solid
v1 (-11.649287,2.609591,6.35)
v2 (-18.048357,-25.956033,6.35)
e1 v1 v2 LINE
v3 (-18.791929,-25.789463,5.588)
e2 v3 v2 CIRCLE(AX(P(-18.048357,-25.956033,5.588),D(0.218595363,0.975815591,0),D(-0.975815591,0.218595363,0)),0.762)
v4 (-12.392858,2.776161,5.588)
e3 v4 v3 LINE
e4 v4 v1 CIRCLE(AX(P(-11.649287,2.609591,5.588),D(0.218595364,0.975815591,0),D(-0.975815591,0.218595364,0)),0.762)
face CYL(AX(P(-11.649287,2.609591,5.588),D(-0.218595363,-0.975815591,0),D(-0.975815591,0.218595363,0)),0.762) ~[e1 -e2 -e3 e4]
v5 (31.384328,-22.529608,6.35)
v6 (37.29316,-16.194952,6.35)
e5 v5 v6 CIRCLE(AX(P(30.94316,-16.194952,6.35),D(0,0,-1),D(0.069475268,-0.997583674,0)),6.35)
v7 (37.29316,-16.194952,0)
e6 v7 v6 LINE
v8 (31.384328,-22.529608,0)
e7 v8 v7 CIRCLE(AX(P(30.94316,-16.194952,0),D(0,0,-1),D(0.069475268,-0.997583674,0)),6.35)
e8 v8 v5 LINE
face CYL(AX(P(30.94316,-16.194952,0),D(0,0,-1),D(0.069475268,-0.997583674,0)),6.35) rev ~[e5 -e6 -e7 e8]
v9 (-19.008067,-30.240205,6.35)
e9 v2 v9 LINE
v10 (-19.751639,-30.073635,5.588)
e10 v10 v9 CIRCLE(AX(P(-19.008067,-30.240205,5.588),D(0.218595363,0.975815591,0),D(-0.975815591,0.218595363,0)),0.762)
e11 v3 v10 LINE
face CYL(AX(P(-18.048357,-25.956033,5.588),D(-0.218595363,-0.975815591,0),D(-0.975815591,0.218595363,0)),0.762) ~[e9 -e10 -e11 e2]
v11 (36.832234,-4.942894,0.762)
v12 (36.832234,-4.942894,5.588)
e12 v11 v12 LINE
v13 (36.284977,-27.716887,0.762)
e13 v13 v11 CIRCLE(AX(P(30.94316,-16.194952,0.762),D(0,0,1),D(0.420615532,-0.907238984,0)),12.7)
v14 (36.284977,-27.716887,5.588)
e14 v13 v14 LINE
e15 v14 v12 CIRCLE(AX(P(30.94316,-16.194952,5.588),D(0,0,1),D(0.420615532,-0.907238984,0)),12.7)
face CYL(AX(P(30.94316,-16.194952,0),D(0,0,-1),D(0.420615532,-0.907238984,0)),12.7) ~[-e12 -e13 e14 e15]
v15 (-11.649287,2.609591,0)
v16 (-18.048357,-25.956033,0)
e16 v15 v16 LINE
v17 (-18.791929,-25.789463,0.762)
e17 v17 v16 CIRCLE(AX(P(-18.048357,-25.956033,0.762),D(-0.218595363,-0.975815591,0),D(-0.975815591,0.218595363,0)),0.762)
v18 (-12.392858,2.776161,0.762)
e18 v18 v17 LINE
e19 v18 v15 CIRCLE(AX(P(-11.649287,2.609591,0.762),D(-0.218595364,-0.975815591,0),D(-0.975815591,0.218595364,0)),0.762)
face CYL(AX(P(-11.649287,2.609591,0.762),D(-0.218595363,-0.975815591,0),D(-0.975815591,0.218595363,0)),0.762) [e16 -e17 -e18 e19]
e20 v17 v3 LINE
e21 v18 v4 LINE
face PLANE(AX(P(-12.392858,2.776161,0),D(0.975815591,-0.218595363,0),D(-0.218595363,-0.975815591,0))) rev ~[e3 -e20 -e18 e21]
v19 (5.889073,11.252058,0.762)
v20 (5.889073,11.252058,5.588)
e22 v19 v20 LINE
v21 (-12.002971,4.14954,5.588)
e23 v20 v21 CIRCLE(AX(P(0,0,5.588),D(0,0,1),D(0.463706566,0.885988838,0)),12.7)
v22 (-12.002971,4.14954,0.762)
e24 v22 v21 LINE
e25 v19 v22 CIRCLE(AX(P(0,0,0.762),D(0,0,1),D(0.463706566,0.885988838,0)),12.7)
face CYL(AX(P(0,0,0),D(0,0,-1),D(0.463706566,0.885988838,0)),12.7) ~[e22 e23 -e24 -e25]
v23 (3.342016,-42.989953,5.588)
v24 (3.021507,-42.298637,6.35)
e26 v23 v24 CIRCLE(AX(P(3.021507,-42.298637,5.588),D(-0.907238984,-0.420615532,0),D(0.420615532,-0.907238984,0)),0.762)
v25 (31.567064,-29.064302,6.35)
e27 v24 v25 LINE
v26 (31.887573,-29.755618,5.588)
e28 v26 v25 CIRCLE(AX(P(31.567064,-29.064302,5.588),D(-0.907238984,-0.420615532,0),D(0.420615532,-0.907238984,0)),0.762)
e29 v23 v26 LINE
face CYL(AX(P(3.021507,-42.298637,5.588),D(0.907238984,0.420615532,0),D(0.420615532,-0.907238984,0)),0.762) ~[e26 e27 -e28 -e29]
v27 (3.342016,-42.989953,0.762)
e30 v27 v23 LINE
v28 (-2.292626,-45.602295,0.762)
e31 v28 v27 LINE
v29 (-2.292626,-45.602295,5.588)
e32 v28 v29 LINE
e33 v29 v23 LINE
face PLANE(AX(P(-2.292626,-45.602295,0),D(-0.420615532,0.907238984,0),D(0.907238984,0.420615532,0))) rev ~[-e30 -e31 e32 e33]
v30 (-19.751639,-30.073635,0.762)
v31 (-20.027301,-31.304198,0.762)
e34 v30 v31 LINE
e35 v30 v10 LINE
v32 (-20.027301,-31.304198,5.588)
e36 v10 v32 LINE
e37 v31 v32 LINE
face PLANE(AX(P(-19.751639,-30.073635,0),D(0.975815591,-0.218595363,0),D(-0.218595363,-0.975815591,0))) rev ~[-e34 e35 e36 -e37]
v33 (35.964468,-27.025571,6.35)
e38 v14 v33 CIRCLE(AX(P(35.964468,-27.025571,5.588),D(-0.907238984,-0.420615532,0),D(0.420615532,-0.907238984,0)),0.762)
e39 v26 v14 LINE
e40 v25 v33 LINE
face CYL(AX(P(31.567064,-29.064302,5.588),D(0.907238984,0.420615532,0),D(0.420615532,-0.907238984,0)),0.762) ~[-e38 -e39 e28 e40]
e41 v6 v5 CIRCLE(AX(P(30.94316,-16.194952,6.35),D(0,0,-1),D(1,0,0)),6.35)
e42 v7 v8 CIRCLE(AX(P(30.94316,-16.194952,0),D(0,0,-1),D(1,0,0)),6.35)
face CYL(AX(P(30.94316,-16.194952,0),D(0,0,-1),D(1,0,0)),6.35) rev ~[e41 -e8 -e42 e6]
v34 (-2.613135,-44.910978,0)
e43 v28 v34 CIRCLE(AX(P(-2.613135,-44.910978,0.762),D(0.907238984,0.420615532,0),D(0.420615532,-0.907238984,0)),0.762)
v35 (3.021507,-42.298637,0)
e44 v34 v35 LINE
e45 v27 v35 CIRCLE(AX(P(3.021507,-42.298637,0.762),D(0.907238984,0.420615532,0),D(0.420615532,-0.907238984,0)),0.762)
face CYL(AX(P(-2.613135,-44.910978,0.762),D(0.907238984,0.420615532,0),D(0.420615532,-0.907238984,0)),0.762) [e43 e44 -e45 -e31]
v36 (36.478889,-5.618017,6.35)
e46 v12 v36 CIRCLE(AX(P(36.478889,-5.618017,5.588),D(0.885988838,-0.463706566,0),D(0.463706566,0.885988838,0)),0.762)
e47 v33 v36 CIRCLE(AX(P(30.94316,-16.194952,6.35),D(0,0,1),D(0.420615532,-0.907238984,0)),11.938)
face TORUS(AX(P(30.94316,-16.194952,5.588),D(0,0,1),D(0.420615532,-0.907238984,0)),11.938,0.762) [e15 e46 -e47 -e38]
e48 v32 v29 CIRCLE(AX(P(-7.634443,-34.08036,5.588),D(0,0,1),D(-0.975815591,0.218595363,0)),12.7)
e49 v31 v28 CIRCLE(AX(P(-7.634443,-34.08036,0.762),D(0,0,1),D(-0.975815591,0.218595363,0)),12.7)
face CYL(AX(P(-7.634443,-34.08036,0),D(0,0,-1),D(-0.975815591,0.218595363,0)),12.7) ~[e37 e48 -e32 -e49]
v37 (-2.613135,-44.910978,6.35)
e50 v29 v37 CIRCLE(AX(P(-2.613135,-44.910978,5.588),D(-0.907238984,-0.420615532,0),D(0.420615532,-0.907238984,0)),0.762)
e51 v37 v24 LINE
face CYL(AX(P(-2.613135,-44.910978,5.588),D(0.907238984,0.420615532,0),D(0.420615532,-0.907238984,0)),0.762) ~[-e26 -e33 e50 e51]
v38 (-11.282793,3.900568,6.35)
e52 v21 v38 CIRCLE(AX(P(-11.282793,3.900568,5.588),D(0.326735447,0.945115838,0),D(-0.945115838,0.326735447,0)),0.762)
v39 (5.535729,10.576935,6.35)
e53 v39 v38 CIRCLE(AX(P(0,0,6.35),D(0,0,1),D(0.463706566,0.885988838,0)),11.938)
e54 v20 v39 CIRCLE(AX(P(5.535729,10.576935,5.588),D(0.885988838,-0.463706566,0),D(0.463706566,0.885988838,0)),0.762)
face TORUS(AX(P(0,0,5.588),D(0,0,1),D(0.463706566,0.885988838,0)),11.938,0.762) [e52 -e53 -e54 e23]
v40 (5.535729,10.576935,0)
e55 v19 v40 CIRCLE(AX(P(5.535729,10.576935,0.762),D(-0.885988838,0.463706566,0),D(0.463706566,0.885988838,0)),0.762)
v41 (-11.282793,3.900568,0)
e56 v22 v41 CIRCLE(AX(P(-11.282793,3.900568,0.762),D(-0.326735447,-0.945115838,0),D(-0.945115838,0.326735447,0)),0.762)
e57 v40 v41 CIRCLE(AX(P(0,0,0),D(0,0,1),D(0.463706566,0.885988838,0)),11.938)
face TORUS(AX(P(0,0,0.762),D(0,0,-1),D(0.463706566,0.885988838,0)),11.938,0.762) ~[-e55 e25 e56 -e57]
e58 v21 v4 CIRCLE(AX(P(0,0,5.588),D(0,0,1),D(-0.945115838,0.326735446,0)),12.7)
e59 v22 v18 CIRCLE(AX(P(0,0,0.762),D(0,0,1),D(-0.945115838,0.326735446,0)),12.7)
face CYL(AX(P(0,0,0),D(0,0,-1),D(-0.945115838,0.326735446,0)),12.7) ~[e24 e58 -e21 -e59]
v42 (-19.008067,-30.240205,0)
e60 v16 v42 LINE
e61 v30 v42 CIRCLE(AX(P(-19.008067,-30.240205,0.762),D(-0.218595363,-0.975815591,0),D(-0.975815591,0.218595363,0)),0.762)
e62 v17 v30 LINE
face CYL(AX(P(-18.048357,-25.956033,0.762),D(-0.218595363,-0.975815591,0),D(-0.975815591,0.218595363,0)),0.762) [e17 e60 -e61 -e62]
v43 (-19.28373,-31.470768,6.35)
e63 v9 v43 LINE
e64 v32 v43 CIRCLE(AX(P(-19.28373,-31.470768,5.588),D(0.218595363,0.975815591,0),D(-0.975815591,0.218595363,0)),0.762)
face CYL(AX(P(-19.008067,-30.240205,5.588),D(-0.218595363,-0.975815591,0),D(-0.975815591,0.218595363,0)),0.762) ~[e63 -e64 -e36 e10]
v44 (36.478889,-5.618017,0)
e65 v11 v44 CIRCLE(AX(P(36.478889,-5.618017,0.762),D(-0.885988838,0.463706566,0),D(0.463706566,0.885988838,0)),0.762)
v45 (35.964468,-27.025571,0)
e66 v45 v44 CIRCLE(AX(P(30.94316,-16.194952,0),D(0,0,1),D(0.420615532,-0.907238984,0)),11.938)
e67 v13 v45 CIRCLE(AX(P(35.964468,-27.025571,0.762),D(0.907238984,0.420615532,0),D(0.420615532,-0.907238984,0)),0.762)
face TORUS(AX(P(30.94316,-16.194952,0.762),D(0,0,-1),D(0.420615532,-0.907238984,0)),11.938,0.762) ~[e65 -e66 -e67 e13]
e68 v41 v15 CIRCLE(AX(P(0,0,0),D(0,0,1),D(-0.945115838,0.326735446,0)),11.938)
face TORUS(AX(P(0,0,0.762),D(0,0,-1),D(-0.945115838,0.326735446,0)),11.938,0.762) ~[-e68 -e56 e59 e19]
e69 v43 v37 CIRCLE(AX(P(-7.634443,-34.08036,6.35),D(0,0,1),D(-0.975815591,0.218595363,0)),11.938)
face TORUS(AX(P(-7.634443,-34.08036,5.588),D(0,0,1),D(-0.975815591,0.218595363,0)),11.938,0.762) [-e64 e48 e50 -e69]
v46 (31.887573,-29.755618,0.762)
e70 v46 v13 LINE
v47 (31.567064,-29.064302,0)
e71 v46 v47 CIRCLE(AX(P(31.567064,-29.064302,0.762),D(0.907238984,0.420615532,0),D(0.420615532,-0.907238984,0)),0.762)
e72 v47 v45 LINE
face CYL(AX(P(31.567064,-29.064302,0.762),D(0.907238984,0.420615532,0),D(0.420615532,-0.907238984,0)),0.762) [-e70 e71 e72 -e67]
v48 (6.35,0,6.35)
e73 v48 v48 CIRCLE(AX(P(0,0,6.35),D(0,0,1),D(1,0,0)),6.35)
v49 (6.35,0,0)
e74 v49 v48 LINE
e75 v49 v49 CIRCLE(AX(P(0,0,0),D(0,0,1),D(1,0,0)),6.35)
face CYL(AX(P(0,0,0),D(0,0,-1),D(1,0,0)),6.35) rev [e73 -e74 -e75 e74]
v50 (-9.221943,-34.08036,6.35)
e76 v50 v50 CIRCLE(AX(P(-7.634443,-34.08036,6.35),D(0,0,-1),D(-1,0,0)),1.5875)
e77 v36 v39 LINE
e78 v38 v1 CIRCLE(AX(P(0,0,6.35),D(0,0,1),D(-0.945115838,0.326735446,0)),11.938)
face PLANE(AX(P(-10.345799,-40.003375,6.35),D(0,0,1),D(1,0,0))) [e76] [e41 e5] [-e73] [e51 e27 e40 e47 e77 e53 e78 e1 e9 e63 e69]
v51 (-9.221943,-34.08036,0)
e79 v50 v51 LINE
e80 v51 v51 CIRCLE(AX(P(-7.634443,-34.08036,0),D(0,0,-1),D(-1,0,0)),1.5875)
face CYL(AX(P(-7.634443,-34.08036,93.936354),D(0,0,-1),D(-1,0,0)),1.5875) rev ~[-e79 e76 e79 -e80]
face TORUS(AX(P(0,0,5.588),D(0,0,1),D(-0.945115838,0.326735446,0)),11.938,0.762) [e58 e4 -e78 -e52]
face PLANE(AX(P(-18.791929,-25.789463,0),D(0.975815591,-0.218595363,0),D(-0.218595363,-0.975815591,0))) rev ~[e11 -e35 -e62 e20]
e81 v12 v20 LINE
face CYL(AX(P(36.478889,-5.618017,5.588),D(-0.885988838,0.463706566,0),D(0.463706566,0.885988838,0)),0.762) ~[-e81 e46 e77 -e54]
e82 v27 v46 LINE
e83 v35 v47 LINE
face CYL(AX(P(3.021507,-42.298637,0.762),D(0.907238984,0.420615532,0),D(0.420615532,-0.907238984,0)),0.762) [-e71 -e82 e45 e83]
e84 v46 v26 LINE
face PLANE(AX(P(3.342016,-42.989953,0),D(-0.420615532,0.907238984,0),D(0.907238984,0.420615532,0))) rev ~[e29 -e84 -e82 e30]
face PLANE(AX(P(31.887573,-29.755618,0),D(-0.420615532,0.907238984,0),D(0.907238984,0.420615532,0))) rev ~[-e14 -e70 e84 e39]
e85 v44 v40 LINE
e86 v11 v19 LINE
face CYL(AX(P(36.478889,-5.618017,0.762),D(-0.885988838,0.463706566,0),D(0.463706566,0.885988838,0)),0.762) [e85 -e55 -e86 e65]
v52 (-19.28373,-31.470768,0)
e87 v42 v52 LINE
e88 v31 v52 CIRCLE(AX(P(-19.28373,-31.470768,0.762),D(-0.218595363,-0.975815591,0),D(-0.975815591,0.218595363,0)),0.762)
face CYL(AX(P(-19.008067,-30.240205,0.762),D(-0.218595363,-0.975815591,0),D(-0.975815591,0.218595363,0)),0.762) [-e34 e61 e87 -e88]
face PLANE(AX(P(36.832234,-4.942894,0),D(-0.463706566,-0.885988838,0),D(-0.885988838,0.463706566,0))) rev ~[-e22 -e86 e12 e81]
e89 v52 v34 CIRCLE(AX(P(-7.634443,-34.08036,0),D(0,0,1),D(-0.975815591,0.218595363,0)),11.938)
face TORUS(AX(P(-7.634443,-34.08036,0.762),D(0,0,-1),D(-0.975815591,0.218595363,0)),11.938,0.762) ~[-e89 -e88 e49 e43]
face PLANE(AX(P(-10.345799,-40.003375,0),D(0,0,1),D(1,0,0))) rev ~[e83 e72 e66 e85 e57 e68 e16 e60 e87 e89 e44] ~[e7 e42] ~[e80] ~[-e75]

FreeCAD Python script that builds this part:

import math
import FreeCAD as App
import Part
import Sketcher
Q = App.Units.Quantity


def edges_at(feature, points):
    """Names of the edges that pass closest to the given points."""
    edges = feature.Shape.Edges
    near = lambda p: min(range(len(edges)), key=lambda i: edges[i].distToShape(Part.Vertex(*p))[0])
    return sorted({f"Edge{near(p) + 1}" for p in points})

doc = App.newDocument("Part")
body = doc.addObject("PartDesign::Body", "Body")

sketch1 = body.newObject("Sketcher::SketchObject", "Sketch")
sketch1.AttachmentSupport = (doc.getObject("XY_Plane"), [""])
sketch1.MapMode = "FlatFace"
sketch1.addGeometry([
    Part.LineSegment(App.Vector(-12.4, 2.8, 0), App.Vector(-18.8, -25.8, 0)),
    Part.LineSegment(App.Vector(-18.8, -25.8, 0), App.Vector(-19.8, -30.1, 0)),
    Part.LineSegment(App.Vector(-19.8, -30.1, 0), App.Vector(-20, -31.3, 0)),
    Part.ArcOfCircle(Part.Circle(App.Vector(-7.6, -34.1, 0), App.Vector(0, 0, 1), 12.7), math.radians(167), math.radians(295)),
    Part.LineSegment(App.Vector(-2.3, -45.6, 0), App.Vector(3.3, -43, 0)),
    Part.LineSegment(App.Vector(3.3, -43, 0), App.Vector(31.9, -29.8, 0)),
    Part.LineSegment(App.Vector(31.9, -29.8, 0), App.Vector(36.3, -27.7, 0)),
    Part.ArcOfCircle(Part.Circle(App.Vector(30.9, -16.2, 0), App.Vector(0, 0, 1), 12.7), math.radians(-65), math.radians(62)),
    Part.LineSegment(App.Vector(36.8, -4.9, 0), App.Vector(5.9, 11.3, 0)),
    Part.ArcOfCircle(Part.Circle(App.Vector(0, 0, 0), App.Vector(0, 0, 1), 12.7), math.radians(62), math.radians(161)),
    Part.ArcOfCircle(Part.Circle(App.Vector(0, 0, 0), App.Vector(0, 0, 1), 12.7), math.radians(160.93), math.radians(167.37)),
    Part.Circle(App.Vector(0, 0, 0), App.Vector(0, 0, 1), 6.3),
    Part.ArcOfCircle(Part.Circle(App.Vector(30.9, -16.2, 0), App.Vector(0, 0, 1), 6.3), math.radians(0), math.radians(274)),
    Part.ArcOfCircle(Part.Circle(App.Vector(30.9, -16.2, 0), App.Vector(0, 0, 1), 6.3), math.radians(-86), math.radians(0)),
], False)
sketch1.addConstraint([
    Sketcher.Constraint("Coincident", 0, 2, 1, 1),
    Sketcher.Constraint("Coincident", 1, 2, 2, 1),
    Sketcher.Constraint("Tangent", 2, 2, 3, 1),
    Sketcher.Constraint("Tangent", 3, 2, 4, 1),
    Sketcher.Constraint("Coincident", 4, 2, 5, 1),
    Sketcher.Constraint("Coincident", 5, 2, 6, 1),
    Sketcher.Constraint("Tangent", 6, 2, 7, 1),
    Sketcher.Constraint("Tangent", 7, 2, 8, 1),
    Sketcher.Constraint("Tangent", 8, 2, 9, 1),
    Sketcher.Constraint("Tangent", 9, 2, 10, 1),
    Sketcher.Constraint("Tangent", 10, 2, 0, 1),
    Sketcher.Constraint("Tangent", 12, 1, 13, 2),
    Sketcher.Constraint("Coincident", 13, 1, 12, 2),
    Sketcher.Constraint("Coincident", 9, 3, -1, 1),
    Sketcher.Constraint("Coincident", 11, 3, -1, 1),
    Sketcher.Constraint("Coincident", 12, 3, 7, 3),
    Sketcher.Constraint("Equal", 3, 7),
    Sketcher.Constraint("Equal", 7, 9),
    Sketcher.Constraint("Equal", 9, 10),
    Sketcher.Constraint("Equal", 11, 12),
    Sketcher.Constraint("Parallel", 0, 1),
    Sketcher.Constraint("Parallel", 1, 2),
    Sketcher.Constraint("Parallel", 4, 5),
    Sketcher.Constraint("Parallel", 5, 6),
    Sketcher.Constraint("Horizontal", 13, 3, 12, 1),
    Sketcher.Constraint("Diameter", 11, Q("0.5 in")),
    Sketcher.Constraint("Radius", 3, Q("0.5 in")),
    Sketcher.Constraint("Distance", 8, Q("1.375 in")),
    Sketcher.Constraint("DistanceX", 2, 2, -1, 1, 20.027301),
    Sketcher.Constraint("DistanceY", 2, 2, -1, 1, 31.304198),
    Sketcher.Constraint("DistanceX", 3, 2, 5, 2, 34.180199),
    Sketcher.Constraint("Distance", 0, 29.273588),
    Sketcher.Constraint("Distance", 1, 4.39035),
    Sketcher.Constraint("Distance", 4, 6.210758),
    Sketcher.Constraint("Distance", 5, 31.464209),
    Sketcher.Constraint("DistanceX", 9, 2, -1, 1, 12.002971),
    Sketcher.Constraint("DistanceX", -1, 1, 13, 1, 31.384328),
])
pad1 = body.newObject("PartDesign::Pad", "Pad")
pad1.Profile = sketch1
pad1.Length = Q("0.25 in")
doc.recompute()

fillet = body.newObject("PartDesign::Fillet", "Fillet")
fillet.Base = (pad1, edges_at(pad1, [
    (-15.606, -43.967, 6.35),
    (17.615, -36.373, 6.35),
    (17.615, -36.373, 0),
    (-15.606, -43.967, 0),
]))
fillet.Radius = Q("0.03 in")

sketch2 = body.newObject("Sketcher::SketchObject", "Sketch001")
sketch2.AttachmentSupport = (doc.getObject("XY_Plane"), [""])
sketch2.MapMode = "FlatFace"
sketch2.AttachmentOffset = App.Placement(App.Vector(0, 0, 0.25 * 25.4), App.Rotation())
sketch2.addGeometry(Part.Circle(App.Vector(-7.6, -34.1, 0), App.Vector(0, 0, 1), 1.6), False)
sketch2.addConstraint([
    Sketcher.Constraint("Diameter", 0, Q("0.125 in")),
    Sketcher.Constraint("DistanceY", 0, 3, -1, 1, 34.08036),
    Sketcher.Constraint("DistanceX", 0, 3, -1, 1, 7.634443),
])
doc.recompute()
hole = body.newObject("PartDesign::Hole", "Hole")
hole.Profile = sketch2
hole.ThreadType = "None"
hole.Diameter = Q("0.125 in")
hole.DepthType = "ThroughAll"

doc.recompute()
